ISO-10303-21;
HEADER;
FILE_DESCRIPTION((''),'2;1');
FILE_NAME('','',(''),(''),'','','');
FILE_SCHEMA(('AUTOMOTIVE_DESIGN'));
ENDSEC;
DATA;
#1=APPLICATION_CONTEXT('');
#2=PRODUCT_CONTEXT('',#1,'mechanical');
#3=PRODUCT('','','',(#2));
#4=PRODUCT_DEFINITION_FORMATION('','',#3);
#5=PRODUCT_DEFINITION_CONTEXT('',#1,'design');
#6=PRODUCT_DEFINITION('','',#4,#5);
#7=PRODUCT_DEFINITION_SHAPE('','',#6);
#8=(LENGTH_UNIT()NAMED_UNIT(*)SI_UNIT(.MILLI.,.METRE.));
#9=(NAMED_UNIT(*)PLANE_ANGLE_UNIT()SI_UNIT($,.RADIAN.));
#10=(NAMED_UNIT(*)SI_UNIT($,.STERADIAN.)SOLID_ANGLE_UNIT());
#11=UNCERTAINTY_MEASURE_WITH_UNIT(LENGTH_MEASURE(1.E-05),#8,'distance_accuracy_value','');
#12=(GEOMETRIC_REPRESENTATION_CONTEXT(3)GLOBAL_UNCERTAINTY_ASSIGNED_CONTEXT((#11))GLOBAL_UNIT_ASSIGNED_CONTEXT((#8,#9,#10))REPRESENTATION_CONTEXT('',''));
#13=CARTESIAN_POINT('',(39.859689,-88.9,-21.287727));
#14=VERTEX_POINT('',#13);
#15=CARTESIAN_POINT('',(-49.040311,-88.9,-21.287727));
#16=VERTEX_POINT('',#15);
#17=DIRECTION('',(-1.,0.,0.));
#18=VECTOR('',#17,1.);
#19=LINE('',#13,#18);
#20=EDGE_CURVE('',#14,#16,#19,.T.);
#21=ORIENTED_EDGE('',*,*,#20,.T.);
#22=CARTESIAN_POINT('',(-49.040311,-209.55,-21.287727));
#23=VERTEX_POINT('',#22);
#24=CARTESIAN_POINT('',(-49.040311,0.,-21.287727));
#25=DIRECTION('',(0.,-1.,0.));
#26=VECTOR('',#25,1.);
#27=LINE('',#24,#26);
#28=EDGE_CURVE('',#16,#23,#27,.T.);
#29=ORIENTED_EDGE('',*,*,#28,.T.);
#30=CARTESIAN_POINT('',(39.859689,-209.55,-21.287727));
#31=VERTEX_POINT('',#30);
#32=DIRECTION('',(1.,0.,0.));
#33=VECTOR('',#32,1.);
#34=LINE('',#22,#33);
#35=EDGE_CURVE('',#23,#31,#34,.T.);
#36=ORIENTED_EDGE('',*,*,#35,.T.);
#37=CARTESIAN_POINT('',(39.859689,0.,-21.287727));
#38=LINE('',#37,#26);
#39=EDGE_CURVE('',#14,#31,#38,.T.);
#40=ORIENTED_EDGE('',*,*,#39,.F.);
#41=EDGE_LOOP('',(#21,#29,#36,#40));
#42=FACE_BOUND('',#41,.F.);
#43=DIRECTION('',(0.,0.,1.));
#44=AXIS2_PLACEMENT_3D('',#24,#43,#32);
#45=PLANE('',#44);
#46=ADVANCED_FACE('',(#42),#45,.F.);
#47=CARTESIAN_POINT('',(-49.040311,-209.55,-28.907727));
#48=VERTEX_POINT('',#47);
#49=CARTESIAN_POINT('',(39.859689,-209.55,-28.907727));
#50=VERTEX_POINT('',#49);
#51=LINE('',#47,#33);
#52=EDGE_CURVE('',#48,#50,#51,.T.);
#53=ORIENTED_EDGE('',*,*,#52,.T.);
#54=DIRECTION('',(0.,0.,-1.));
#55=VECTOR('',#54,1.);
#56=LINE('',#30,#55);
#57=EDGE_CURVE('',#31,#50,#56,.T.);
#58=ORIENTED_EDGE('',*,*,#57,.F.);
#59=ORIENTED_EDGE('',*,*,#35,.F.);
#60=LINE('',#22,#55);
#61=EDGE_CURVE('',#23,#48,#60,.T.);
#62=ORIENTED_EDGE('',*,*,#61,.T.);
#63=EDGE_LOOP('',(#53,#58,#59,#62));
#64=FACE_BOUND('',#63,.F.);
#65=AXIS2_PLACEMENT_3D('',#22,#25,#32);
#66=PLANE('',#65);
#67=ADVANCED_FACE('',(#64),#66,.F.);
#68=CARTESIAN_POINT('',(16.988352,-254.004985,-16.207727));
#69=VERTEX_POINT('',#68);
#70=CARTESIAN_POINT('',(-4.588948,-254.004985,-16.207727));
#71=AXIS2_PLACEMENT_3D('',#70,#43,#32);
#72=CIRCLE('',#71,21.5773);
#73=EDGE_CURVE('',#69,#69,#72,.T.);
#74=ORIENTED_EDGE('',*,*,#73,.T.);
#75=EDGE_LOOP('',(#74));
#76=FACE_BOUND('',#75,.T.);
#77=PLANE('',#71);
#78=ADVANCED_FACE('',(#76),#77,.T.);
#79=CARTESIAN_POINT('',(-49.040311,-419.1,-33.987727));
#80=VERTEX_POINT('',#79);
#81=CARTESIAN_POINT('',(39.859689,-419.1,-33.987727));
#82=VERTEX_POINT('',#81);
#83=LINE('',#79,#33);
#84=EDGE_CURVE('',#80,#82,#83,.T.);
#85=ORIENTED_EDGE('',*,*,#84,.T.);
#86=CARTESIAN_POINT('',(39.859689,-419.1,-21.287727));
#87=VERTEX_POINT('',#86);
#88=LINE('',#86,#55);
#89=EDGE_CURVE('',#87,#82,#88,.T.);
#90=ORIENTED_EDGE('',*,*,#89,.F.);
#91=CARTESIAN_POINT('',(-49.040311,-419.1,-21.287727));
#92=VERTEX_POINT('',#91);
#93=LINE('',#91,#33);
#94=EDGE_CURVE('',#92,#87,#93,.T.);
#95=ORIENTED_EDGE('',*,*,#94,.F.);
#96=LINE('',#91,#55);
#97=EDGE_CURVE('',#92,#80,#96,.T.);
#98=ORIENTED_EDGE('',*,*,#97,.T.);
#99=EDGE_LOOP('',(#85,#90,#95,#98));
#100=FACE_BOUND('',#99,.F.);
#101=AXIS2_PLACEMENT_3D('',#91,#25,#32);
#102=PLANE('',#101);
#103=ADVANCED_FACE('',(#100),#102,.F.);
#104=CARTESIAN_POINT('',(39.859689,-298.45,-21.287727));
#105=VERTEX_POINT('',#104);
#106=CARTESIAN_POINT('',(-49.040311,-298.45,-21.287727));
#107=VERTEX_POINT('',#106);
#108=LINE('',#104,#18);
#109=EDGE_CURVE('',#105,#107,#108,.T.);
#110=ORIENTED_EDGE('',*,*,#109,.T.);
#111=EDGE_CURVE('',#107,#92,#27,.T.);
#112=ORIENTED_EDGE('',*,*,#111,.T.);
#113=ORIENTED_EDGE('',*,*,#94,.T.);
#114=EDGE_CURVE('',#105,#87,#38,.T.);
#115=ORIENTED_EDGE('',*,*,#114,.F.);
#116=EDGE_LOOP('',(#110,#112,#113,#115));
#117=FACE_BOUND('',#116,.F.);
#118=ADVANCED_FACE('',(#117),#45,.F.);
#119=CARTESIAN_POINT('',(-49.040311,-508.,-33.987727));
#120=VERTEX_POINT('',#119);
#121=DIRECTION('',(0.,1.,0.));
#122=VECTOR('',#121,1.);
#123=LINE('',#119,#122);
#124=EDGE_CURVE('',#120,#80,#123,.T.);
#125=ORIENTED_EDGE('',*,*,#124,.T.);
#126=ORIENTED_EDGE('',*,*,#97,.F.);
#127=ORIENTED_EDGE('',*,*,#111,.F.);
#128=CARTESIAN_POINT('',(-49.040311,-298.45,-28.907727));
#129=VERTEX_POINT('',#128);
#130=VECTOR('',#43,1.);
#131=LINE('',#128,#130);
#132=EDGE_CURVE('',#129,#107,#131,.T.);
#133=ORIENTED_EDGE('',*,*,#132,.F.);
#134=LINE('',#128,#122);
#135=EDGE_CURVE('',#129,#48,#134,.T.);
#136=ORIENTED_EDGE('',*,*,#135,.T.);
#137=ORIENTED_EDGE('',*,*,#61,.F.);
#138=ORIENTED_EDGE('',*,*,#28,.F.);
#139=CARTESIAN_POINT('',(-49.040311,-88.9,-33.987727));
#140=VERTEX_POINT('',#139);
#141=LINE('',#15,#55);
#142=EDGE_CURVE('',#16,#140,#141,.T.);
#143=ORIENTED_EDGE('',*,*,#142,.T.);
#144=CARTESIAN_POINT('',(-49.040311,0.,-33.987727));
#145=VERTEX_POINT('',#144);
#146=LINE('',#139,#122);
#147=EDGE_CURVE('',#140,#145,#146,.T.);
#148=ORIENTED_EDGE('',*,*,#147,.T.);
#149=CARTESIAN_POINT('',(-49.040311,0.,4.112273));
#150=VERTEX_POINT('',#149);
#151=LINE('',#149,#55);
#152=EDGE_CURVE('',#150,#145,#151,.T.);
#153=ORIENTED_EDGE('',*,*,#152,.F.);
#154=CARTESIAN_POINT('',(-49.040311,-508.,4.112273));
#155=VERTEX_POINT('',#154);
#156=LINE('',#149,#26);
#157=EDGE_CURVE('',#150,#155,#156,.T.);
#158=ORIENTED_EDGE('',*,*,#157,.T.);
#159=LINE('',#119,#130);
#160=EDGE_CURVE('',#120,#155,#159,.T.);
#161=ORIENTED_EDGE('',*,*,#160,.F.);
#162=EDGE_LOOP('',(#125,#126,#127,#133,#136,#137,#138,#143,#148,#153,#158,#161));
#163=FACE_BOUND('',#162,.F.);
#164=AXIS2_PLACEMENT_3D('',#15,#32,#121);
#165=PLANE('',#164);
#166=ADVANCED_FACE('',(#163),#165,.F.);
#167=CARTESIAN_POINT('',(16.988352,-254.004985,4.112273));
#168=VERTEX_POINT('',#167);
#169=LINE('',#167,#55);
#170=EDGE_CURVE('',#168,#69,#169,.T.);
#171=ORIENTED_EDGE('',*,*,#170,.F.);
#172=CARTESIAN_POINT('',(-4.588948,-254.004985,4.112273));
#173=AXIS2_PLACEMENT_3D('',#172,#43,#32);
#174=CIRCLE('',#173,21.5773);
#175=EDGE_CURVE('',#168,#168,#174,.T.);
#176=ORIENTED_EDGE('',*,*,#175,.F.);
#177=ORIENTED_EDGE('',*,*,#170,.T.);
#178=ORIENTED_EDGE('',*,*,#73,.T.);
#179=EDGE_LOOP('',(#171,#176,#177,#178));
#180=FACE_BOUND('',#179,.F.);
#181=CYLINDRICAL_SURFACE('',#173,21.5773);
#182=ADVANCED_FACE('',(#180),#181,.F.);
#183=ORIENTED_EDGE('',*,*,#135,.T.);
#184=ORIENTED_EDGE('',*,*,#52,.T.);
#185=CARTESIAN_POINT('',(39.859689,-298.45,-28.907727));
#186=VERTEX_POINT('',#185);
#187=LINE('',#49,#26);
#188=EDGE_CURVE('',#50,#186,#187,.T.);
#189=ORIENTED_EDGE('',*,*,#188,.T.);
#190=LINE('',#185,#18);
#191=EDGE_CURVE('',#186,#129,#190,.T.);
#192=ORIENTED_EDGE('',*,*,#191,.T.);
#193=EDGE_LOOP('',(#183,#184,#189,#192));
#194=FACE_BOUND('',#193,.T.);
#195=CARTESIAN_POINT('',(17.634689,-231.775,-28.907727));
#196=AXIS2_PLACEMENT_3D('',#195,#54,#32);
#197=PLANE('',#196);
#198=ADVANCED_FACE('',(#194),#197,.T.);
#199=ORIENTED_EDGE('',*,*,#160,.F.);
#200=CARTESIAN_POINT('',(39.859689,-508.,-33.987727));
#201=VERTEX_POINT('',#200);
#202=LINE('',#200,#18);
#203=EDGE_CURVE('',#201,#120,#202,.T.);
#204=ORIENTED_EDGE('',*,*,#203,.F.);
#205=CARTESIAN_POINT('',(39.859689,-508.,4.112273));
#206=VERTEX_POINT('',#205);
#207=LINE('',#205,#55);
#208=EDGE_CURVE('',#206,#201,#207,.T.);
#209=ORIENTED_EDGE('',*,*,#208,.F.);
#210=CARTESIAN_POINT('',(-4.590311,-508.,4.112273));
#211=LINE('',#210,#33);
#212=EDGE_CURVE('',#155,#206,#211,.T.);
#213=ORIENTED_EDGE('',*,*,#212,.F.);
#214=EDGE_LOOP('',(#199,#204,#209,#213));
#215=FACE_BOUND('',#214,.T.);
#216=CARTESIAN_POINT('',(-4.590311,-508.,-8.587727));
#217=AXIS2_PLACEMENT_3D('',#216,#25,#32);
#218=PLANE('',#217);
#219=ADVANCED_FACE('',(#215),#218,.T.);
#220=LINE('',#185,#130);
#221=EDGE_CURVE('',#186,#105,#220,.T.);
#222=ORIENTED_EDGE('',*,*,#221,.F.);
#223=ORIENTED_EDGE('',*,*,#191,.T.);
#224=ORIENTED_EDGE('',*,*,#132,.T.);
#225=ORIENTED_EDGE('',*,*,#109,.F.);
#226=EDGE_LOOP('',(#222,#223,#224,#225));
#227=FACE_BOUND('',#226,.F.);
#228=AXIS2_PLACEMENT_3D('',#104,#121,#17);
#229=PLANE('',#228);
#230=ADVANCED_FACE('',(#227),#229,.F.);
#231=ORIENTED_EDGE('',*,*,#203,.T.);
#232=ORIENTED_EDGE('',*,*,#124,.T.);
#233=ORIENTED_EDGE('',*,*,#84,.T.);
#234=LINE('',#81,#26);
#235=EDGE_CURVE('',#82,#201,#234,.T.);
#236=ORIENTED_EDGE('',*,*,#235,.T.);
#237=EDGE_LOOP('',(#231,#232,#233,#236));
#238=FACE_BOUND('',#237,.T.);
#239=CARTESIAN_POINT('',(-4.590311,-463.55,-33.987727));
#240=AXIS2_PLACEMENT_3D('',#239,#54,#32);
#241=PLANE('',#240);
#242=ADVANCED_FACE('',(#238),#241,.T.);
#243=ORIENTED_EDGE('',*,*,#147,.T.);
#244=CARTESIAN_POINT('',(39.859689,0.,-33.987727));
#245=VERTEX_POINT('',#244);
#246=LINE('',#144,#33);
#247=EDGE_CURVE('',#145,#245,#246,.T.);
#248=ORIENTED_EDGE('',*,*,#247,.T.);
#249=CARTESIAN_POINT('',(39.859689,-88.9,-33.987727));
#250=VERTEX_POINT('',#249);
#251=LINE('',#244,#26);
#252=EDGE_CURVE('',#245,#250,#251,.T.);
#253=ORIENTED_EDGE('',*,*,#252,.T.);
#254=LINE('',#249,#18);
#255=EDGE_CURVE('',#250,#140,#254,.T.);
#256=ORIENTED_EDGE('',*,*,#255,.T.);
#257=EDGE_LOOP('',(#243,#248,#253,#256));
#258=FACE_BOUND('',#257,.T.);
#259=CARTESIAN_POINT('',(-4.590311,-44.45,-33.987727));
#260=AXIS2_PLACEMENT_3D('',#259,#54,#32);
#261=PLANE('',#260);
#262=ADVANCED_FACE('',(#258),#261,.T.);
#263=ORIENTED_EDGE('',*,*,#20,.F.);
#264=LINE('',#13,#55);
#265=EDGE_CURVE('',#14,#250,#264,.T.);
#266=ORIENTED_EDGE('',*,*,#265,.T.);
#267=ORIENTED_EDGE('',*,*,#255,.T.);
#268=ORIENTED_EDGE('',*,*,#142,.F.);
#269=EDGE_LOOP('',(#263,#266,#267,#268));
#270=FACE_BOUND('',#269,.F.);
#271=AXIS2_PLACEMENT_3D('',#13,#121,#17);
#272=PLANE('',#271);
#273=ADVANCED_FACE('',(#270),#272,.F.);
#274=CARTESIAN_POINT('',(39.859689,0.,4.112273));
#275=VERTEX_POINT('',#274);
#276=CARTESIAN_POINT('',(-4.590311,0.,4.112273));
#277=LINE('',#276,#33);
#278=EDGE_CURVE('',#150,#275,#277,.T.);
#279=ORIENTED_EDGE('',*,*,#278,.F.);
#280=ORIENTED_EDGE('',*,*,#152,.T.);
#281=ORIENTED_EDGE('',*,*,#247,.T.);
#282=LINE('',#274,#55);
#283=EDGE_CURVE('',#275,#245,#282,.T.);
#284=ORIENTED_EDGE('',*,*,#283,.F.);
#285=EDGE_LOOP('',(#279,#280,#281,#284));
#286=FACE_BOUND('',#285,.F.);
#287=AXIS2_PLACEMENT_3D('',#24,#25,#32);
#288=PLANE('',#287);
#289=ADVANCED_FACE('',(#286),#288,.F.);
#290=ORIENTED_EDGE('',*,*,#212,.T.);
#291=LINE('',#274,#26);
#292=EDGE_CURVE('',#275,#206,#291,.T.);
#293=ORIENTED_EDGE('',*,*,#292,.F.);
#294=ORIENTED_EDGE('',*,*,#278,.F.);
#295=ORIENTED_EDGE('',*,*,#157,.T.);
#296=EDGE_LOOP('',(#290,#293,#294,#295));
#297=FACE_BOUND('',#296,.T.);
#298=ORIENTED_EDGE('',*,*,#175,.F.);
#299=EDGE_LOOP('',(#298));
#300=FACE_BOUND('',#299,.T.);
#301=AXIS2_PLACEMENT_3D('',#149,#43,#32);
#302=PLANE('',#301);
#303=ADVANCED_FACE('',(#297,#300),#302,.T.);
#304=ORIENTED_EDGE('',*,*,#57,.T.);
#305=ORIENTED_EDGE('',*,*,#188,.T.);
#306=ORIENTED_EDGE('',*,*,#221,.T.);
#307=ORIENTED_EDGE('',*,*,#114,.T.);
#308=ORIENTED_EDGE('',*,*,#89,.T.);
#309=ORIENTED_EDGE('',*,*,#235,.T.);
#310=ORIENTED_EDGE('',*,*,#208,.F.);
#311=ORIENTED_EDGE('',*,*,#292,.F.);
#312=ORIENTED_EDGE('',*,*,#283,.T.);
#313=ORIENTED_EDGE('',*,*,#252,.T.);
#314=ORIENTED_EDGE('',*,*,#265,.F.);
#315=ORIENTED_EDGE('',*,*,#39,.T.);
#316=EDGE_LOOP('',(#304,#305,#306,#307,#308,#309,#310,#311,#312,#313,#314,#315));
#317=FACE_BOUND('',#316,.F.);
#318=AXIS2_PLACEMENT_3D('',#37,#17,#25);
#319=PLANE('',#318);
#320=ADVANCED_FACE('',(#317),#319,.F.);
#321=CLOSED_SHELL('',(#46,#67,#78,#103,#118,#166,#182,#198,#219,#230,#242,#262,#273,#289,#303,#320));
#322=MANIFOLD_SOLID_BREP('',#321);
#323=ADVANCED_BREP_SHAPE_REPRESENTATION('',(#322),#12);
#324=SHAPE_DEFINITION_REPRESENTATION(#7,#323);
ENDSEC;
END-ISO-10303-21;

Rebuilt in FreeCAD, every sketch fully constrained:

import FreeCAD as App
import Part
import Sketcher

V = App.Vector
Q = App.Units.Quantity


def add_polygon(sketch, points):
    """Adds a closed chain of lines whose ends are joined by coincident constraints."""
    first, n = sketch.GeometryCount, len(points)
    for a, b in zip(points, points[1:] + points[:1]):
        sketch.addGeometry(Part.LineSegment(App.Vector(*a, 0), App.Vector(*b, 0)), False)
    for i in range(n):
        sketch.addConstraint(Sketcher.Constraint("Coincident", first + i, 2, first + (i + 1) % n, 1))

doc = App.newDocument("Part")
body = doc.addObject("PartDesign::Body", "Body")

# Sketch on XZ plane
sketch1 = body.newObject("Sketcher::SketchObject", "Sketch")
sketch1.AttachmentSupport = (doc.getObject("XZ_Plane"), [""])
sketch1.MapMode = "FlatFace"
add_polygon(sketch1, [(-49.040311, 4.112273), (-49.040311, -21.287727), (39.859689, -21.287727), (39.859689, 4.112273)])  # lines 0-3
sketch1.addConstraint([
    Sketcher.Constraint("Vertical", 0),
    Sketcher.Constraint("Horizontal", 1),
    Sketcher.Constraint("Vertical", 2),
    Sketcher.Constraint("Horizontal", 3),
    Sketcher.Constraint("DistanceY", 0, 2, 0, 1, Q("1 in")),
    Sketcher.Constraint("DistanceX", 1, 1, 1, 2, Q("3.5 in")),
    Sketcher.Constraint("DistanceX", 0, 2, -1, 1, 49.040311),
    Sketcher.Constraint("DistanceY", 0, 2, -1, 1, 21.287727),
])
pad1 = body.newObject("PartDesign::Pad", "Pad")
pad1.Profile = sketch1
pad1.Length = Q("20 in")

# Sketch on XY plane
sketch2 = body.newObject("Sketcher::SketchObject", "Sketch001")
sketch2.AttachmentSupport = (doc.getObject("XY_Plane"), [""])
sketch2.MapMode = "FlatFace"
sketch2.AttachmentOffset = App.Placement(V(0, 0, -21.287727), App.Rotation())
add_polygon(sketch2, [(-49.040311, -88.9), (-49.040311, 0), (39.859689, 0), (39.859689, -88.9)])  # lines 0-3
add_polygon(sketch2, [(-49.040311, -508), (-49.040311, -419.1), (39.859689, -419.1), (39.859689, -508)])  # lines 4-7
sketch2.addConstraint([
    Sketcher.Constraint("Vertical", 0),
    Sketcher.Constraint("Horizontal", 1),
    Sketcher.Constraint("Vertical", 2),
    Sketcher.Constraint("Horizontal", 3),
    Sketcher.Constraint("Vertical", 4),
    Sketcher.Constraint("Horizontal", 5),
    Sketcher.Constraint("Vertical", 6),
    Sketcher.Constraint("Horizontal", 7),
    Sketcher.Constraint("PointOnObject", 0, 2, -1),
    Sketcher.Constraint("Vertical", 3, 2, 4, 2),
    Sketcher.Constraint("Vertical", 2, 2, 5, 2),
    Sketcher.Constraint("Equal", 7, 0),
    Sketcher.Constraint("Equal", 2, 4),
    Sketcher.Constraint("DistanceX", 1, 1, 1, 2, Q("3.5 in")),
    Sketcher.Constraint("DistanceY", 6, 2, -1, 1, Q("20 in")),
    Sketcher.Constraint("DistanceX", 0, 2, -1, 1, 49.040311),
])
pad2 = body.newObject("PartDesign::Pad", "Pad001")
pad2.Profile = sketch2
pad2.Length = Q("0.5 in")
pad2.Reversed = True

# Sketch on XY plane
sketch3 = body.newObject("Sketcher::SketchObject", "Sketch002")
sketch3.AttachmentSupport = (doc.getObject("XY_Plane"), [""])
sketch3.MapMode = "FlatFace"
sketch3.AttachmentOffset = App.Placement(V(0, 0, -21.287727), App.Rotation())
add_polygon(sketch3, [(39.859689, -209.55), (39.859689, -298.45), (-49.040311, -298.45), (-49.040311, -209.55)])  # lines 0-3
sketch3.addConstraint([
    Sketcher.Constraint("Vertical", 0),
    Sketcher.Constraint("Horizontal", 1),
    Sketcher.Constraint("Vertical", 2),
    Sketcher.Constraint("Horizontal", 3),
    Sketcher.Constraint("Equal", 3, 0),
    Sketcher.Constraint("DistanceX", 1, 2, 1, 1, Q("3.5 in")),
    Sketcher.Constraint("DistanceY", 0, 2, -1, 1, Q("11.75 in")),
    Sketcher.Constraint("DistanceX", -1, 1, 0, 2, 39.859689),
])
pad3 = body.newObject("PartDesign::Pad", "Pad002")
pad3.Profile = sketch3
pad3.Length = Q("0.175 in")
pad3.Reversed = True

# Sketch on XY plane
sketch4 = body.newObject("Sketcher::SketchObject", "Sketch003")
sketch4.AttachmentSupport = (doc.getObject("XY_Plane"), [""])
sketch4.MapMode = "FlatFace"
sketch4.AttachmentOffset = App.Placement(V(0, 0, -21.287727), App.Rotation())
add_polygon(sketch4, [(39.859689, -209.55), (39.859689, -298.45), (-49.040311, -298.45), (-49.040311, -209.55)])  # lines 0-3
sketch4.addConstraint([
    Sketcher.Constraint("Vertical", 0),
    Sketcher.Constraint("Horizontal", 1),
    Sketcher.Constraint("Vertical", 2),
    Sketcher.Constraint("Horizontal", 3),
    Sketcher.Constraint("Equal", 3, 0),
    Sketcher.Constraint("DistanceX", 1, 2, 1, 1, Q("3.5 in")),
    Sketcher.Constraint("DistanceY", 0, 2, -1, 1, Q("11.75 in")),
    Sketcher.Constraint("DistanceX", -1, 1, 0, 2, 39.859689),
])
pad4 = body.newObject("PartDesign::Pad", "Pad003")
pad4.Profile = sketch4
pad4.Length = Q("0.3 in")
pad4.Reversed = True

# Sketch on XY plane
sketch5 = body.newObject("Sketcher::SketchObject", "Sketch004")
sketch5.AttachmentSupport = (doc.getObject("XY_Plane"), [""])
sketch5.MapMode = "FlatFace"
sketch5.AttachmentOffset = App.Placement(V(0, 0, 4.112273), App.Rotation())
sketch5.addGeometry(Part.Circle(V(-4.588948, -254.004985, 0), V(0, 0, 1), 21.5773), False)
sketch5.addConstraint([
    Sketcher.Constraint("Diameter", 0, Q("1.699 in")),
    Sketcher.Constraint("DistanceX", 0, 3, -1, 1, 4.588948),
    Sketcher.Constraint("DistanceY", 0, 3, -1, 1, 254.004985),
])
pocket1 = body.newObject("PartDesign::Pocket", "Pocket")
pocket1.Profile = sketch5
pocket1.Length = Q("0.8 in")

doc.recompute()
